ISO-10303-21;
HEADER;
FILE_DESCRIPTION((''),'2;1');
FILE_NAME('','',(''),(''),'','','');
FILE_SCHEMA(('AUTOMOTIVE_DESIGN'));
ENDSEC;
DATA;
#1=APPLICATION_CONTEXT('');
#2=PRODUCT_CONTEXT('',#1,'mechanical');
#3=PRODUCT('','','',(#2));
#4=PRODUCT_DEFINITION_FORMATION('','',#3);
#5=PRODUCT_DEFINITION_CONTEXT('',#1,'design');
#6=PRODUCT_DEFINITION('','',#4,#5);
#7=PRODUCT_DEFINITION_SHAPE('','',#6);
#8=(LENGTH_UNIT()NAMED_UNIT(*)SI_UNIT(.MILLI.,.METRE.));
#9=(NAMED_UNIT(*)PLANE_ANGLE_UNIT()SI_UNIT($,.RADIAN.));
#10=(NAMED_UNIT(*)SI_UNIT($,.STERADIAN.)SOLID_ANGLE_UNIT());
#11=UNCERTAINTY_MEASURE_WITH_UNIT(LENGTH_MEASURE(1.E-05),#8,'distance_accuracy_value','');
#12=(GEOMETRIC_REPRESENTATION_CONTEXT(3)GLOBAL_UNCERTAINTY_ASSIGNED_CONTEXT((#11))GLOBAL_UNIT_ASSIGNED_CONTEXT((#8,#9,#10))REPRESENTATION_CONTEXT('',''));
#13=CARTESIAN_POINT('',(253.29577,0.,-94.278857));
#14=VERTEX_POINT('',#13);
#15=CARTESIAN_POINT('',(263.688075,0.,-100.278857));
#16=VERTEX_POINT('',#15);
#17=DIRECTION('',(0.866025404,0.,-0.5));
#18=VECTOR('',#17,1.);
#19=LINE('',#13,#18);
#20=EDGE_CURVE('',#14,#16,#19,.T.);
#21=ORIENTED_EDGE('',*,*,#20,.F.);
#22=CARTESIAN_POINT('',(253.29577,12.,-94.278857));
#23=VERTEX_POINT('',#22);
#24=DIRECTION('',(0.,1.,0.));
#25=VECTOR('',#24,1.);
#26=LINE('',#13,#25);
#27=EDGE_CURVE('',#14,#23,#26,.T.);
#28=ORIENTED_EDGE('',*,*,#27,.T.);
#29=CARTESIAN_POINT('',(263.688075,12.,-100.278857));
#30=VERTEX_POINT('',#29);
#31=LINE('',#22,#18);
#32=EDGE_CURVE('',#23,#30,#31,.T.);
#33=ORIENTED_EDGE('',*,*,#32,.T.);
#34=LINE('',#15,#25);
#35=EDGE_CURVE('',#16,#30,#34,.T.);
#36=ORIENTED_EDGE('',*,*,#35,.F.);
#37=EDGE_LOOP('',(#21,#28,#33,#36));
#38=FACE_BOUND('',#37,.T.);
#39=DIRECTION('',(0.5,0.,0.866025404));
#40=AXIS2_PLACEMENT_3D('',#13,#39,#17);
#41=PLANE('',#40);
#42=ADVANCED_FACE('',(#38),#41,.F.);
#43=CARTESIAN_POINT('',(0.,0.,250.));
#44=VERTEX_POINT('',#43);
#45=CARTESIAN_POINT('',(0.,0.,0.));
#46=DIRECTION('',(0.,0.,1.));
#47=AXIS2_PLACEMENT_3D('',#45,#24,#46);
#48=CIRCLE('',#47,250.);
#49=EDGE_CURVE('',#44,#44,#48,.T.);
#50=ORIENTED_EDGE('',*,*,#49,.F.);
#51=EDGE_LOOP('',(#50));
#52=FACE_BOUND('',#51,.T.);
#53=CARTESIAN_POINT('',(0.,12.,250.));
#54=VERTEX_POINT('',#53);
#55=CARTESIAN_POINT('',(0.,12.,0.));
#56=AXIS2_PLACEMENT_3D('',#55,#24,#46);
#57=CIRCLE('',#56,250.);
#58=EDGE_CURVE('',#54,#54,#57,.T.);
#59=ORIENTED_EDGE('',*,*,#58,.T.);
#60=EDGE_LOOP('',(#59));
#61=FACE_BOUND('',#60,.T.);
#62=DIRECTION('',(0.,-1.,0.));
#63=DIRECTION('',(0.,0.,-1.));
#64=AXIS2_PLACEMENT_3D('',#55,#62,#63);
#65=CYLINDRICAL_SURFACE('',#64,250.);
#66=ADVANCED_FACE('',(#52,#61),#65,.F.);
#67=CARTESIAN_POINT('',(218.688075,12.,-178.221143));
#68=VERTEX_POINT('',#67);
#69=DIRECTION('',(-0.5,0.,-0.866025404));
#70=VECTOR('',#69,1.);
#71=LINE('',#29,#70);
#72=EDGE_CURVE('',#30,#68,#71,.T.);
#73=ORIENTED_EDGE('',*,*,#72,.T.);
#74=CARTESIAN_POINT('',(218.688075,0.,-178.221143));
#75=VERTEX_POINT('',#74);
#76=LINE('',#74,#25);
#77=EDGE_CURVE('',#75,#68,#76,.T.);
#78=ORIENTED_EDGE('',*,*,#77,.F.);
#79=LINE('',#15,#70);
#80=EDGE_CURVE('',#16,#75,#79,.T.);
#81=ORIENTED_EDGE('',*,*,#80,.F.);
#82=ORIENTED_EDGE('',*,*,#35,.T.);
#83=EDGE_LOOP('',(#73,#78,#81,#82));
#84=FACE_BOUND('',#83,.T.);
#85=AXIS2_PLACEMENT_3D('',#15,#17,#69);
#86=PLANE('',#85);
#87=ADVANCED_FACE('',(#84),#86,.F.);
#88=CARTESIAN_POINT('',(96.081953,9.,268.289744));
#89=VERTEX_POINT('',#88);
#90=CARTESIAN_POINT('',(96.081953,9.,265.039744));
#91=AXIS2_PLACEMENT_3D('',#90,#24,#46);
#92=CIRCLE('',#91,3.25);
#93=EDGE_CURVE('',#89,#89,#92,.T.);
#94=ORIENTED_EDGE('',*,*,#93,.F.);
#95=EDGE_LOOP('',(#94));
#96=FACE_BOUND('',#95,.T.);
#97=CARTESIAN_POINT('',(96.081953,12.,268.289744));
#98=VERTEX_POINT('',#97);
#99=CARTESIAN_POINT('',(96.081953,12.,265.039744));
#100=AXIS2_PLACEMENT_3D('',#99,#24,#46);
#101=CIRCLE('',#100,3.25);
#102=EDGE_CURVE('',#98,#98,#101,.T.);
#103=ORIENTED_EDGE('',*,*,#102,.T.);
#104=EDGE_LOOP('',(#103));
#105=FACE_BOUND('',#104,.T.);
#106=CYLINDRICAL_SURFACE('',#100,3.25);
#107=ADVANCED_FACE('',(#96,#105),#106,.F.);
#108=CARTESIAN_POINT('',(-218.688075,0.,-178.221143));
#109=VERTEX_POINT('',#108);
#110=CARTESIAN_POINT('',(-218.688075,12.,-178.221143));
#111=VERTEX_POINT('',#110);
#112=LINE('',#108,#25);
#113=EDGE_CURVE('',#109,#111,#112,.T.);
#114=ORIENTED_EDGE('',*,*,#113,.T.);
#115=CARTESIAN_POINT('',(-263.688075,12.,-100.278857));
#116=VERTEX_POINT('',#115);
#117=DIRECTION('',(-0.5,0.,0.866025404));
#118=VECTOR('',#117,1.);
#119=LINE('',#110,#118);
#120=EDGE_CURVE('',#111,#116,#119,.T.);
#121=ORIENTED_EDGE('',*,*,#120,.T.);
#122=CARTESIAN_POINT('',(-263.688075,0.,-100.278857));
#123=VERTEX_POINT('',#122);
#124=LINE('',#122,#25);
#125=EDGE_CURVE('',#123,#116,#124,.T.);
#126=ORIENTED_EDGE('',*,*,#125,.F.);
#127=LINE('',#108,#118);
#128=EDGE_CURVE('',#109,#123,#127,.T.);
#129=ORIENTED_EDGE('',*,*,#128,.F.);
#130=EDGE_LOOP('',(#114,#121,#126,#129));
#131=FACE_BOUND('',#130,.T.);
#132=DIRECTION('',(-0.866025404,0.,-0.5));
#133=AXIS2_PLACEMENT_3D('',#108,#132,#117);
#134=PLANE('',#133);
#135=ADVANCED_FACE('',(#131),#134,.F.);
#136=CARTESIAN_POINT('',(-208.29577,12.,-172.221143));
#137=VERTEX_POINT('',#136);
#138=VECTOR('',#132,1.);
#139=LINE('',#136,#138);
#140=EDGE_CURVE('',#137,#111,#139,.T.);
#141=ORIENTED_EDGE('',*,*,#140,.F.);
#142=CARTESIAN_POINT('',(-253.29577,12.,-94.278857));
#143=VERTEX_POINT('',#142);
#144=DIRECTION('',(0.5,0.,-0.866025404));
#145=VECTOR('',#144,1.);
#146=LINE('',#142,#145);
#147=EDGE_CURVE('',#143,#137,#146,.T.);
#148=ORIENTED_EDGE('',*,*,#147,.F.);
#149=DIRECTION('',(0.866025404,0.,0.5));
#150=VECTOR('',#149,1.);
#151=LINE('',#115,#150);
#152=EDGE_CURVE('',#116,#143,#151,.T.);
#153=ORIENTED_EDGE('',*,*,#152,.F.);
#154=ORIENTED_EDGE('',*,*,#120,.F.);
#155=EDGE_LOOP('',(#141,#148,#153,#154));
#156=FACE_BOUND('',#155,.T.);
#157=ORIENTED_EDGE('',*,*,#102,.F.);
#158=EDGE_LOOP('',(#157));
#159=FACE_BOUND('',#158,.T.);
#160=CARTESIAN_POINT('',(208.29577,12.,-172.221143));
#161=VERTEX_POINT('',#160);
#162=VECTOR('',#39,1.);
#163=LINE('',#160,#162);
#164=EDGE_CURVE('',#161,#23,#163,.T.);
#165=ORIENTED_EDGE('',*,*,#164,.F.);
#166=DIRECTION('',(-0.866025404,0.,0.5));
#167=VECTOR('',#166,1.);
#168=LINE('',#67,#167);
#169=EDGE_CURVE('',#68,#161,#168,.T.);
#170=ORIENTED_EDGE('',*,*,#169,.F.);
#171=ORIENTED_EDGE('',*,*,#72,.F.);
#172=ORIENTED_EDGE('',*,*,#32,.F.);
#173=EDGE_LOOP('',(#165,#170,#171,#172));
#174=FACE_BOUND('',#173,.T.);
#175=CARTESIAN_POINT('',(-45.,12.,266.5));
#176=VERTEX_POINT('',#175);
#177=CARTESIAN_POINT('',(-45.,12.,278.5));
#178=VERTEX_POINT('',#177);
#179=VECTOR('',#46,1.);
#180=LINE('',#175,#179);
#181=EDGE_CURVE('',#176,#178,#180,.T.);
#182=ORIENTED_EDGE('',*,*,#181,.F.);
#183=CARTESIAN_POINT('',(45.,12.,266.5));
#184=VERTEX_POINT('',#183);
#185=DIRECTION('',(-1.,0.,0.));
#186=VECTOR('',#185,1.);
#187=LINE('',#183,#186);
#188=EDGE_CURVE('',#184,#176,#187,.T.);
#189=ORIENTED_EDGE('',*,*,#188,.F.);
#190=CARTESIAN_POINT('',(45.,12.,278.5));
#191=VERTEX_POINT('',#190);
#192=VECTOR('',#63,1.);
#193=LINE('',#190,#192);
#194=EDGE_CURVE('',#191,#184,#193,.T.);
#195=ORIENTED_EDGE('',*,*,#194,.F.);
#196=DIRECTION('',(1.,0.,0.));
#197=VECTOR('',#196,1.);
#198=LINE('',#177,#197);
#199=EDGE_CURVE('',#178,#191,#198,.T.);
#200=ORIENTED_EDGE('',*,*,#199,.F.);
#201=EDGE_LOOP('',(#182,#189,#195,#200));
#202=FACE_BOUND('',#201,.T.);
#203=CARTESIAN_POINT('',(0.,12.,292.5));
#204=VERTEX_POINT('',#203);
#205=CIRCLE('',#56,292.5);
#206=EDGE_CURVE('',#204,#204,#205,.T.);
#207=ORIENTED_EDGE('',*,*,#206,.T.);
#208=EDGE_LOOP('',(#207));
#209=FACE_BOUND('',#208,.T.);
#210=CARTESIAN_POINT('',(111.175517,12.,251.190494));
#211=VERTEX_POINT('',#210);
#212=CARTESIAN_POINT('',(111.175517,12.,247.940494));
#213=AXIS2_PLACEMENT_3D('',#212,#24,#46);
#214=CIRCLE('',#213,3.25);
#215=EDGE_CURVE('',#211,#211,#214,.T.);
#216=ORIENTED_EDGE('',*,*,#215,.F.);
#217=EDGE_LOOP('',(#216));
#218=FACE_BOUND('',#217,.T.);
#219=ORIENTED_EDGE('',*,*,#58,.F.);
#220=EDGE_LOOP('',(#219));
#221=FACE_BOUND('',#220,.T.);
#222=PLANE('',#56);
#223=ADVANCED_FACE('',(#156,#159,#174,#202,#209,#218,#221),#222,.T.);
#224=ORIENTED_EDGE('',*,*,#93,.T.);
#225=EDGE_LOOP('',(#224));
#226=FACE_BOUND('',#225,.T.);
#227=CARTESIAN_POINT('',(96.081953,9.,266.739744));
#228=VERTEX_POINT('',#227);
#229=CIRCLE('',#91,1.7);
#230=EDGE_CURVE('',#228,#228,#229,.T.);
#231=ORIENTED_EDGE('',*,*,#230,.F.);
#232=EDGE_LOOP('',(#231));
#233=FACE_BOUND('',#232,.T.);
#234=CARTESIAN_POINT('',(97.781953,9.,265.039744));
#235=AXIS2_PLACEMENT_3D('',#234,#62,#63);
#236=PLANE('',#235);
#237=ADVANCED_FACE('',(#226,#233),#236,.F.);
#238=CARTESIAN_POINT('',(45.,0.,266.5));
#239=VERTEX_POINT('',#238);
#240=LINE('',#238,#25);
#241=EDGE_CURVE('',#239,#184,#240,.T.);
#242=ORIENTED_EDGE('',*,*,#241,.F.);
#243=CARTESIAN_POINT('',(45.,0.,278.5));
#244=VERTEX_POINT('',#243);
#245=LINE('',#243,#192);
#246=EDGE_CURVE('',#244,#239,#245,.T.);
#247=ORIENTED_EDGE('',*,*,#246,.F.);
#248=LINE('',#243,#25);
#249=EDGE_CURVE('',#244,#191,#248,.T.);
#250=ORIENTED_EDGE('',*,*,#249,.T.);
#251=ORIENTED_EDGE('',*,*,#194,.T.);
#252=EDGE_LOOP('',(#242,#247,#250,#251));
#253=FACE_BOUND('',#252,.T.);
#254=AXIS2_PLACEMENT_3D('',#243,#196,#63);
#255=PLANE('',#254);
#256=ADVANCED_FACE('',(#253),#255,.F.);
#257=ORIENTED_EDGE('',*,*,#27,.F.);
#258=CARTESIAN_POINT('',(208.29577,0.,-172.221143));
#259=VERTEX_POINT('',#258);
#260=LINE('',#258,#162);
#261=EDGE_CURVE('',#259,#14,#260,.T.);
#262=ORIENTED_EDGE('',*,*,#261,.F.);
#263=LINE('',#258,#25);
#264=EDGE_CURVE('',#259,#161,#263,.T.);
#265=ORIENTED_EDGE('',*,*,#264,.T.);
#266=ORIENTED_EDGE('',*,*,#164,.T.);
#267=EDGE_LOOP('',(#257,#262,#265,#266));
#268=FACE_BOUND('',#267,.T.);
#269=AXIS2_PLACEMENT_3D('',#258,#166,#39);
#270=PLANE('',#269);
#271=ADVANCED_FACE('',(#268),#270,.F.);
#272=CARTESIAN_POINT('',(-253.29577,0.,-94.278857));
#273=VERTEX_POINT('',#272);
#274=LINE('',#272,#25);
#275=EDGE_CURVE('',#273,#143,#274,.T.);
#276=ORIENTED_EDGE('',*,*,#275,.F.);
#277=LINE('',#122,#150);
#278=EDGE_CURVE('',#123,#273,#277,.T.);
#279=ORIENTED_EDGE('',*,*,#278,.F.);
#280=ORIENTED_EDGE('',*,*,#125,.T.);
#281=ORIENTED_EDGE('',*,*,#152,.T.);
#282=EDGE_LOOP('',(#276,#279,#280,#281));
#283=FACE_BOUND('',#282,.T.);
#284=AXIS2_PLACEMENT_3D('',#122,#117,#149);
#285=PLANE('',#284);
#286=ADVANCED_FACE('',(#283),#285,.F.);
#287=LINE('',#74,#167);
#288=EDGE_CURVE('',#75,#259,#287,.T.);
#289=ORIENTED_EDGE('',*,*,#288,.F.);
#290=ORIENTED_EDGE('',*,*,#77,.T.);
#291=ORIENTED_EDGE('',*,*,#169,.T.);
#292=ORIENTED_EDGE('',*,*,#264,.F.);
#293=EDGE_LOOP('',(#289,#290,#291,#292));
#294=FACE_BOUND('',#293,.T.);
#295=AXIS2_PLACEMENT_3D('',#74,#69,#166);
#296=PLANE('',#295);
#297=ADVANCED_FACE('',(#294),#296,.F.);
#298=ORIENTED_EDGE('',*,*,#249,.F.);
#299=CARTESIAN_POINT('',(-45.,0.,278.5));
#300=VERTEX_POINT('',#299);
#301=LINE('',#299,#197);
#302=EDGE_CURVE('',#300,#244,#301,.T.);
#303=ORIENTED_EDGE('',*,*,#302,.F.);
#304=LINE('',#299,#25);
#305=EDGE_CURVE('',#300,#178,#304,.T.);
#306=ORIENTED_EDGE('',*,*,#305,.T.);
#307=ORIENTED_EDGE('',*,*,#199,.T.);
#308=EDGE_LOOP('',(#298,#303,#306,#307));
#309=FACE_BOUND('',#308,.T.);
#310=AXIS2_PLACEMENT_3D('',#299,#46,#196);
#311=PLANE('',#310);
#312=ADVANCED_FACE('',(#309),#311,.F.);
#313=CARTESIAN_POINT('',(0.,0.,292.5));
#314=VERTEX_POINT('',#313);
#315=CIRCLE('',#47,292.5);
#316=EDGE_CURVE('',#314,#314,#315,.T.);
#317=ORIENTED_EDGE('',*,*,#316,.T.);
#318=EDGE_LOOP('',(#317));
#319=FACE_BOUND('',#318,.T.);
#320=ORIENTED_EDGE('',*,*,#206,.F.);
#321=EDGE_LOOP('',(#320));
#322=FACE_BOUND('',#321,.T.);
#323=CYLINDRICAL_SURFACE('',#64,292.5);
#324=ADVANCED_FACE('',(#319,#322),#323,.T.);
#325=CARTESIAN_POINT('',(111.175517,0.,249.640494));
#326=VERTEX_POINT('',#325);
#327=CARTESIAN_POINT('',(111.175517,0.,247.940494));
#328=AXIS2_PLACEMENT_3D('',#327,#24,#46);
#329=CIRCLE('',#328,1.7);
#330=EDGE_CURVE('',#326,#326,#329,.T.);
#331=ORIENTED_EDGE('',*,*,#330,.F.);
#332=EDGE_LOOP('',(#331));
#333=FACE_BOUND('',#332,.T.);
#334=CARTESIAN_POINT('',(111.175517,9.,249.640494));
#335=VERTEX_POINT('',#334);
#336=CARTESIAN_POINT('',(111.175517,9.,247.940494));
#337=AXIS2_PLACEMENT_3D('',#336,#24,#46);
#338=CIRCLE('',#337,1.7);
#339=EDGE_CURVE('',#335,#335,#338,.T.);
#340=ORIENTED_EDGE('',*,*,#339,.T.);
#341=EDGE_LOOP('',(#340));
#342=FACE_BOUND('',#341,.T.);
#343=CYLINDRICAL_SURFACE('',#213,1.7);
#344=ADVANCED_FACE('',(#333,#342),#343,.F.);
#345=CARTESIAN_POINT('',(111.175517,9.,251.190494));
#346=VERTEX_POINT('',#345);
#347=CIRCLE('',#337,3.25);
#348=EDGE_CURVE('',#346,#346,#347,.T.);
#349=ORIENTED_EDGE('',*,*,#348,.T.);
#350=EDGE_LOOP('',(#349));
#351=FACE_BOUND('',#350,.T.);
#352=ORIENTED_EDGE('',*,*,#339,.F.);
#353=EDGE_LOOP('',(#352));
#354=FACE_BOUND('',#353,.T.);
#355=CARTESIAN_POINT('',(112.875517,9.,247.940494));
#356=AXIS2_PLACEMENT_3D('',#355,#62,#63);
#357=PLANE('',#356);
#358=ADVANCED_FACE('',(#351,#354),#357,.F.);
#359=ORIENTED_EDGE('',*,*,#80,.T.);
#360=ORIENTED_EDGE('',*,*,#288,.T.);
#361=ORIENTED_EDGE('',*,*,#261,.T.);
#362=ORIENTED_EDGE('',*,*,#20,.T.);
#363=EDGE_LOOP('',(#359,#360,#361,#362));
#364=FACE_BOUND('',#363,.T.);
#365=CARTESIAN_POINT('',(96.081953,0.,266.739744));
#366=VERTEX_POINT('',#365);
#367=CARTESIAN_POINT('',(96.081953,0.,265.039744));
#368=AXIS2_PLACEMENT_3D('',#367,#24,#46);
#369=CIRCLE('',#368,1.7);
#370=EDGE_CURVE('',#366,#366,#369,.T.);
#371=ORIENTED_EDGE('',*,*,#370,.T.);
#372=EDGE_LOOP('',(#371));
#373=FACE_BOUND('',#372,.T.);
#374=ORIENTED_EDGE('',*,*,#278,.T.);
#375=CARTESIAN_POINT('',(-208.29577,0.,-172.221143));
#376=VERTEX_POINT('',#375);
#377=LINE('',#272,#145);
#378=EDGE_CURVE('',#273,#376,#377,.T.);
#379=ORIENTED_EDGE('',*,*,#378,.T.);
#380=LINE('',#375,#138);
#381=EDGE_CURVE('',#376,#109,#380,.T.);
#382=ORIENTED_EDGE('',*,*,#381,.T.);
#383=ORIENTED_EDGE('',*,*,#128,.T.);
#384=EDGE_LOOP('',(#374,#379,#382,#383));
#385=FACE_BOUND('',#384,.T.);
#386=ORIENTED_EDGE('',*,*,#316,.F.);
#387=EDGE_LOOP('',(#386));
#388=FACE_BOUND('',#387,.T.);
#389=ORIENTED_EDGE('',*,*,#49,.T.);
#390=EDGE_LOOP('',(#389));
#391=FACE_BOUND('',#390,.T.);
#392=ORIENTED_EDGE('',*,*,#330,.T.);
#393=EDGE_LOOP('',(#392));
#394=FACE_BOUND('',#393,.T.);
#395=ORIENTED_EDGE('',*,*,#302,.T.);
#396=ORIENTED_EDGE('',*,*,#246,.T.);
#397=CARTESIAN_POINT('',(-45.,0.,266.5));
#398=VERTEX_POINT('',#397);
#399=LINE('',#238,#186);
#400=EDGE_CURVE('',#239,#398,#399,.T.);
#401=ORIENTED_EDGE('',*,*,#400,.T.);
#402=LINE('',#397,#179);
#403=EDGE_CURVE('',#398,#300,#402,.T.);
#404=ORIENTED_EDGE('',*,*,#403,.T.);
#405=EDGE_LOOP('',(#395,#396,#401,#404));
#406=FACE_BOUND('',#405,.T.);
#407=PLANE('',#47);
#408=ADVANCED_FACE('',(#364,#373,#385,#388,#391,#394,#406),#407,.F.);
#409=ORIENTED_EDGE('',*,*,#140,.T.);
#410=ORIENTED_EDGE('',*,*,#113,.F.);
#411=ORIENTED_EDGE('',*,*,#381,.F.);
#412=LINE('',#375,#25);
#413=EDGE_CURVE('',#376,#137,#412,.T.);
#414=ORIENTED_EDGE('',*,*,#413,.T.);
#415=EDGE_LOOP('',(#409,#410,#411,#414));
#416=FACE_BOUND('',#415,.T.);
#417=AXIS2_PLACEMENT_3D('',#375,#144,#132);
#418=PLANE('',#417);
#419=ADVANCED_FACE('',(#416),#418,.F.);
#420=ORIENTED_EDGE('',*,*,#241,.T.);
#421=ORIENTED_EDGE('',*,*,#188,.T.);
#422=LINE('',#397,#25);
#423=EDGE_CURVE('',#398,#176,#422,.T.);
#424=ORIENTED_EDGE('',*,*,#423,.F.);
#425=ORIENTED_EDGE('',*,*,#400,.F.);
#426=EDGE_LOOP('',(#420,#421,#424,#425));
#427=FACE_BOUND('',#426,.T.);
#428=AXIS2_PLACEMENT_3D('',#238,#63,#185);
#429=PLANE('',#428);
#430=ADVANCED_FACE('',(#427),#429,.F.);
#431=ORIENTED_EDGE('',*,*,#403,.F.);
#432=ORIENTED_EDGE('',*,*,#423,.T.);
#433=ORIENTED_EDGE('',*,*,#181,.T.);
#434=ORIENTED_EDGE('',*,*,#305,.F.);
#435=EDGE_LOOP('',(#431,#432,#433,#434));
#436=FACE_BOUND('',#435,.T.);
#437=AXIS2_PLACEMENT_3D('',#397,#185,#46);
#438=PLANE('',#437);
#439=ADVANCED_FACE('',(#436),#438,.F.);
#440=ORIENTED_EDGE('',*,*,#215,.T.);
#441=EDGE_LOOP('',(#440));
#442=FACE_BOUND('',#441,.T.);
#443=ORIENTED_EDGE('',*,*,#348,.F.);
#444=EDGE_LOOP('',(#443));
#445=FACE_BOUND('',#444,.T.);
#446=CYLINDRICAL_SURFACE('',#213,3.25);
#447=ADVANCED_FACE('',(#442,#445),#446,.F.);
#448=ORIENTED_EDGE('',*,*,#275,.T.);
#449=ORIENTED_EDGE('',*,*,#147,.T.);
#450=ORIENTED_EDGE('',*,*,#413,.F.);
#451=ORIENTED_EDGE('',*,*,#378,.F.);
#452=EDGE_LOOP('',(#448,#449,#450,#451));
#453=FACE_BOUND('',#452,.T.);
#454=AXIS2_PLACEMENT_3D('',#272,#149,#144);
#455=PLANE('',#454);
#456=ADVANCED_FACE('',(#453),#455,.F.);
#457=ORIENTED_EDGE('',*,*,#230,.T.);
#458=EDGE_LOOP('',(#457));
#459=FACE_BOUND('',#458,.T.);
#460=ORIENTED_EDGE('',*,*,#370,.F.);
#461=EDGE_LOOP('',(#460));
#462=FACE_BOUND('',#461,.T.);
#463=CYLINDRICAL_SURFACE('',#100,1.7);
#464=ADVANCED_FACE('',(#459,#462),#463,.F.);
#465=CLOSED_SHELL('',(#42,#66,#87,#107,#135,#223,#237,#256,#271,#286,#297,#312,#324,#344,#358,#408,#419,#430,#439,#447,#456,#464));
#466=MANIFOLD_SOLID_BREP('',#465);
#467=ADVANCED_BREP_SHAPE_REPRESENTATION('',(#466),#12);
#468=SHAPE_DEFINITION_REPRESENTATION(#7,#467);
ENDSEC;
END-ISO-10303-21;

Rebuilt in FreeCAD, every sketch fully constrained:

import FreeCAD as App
import Part
import Sketcher
Q = App.Units.Quantity


def add_polygon(sketch, points):
    """Adds a closed chain of lines whose ends are joined by coincident constraints."""
    first, n = sketch.GeometryCount, len(points)
    for a, b in zip(points, points[1:] + points[:1]):
        sketch.addGeometry(Part.LineSegment(App.Vector(*a, 0), App.Vector(*b, 0)), False)
    for i in range(n):
        sketch.addConstraint(Sketcher.Constraint("Coincident", first + i, 2, first + (i + 1) % n, 1))

doc = App.newDocument("Part")
body = doc.addObject("PartDesign::Body", "Body")

# Sketch on XZ plane
sketch1 = body.newObject("Sketcher::SketchObject", "Sketch")
sketch1.AttachmentSupport = (doc.getObject("XZ_Plane"), [""])
sketch1.MapMode = "FlatFace"
sketch1.addGeometry([
    Part.Circle(App.Vector(0, 0, 0), App.Vector(0, 0, 1), 292),
    Part.Circle(App.Vector(0, 0, 0), App.Vector(0, 0, 1), 250),
], False)
sketch1.addConstraint([
    Sketcher.Constraint("Coincident", 0, 3, -1, 1),
    Sketcher.Constraint("Coincident", 1, 3, -1, 1),
    Sketcher.Constraint("Diameter", 0, Q("585 mm")),
    Sketcher.Constraint("Diameter", 1, Q("500 mm")),
])
pad1 = body.newObject("PartDesign::Pad", "Pad")
pad1.Profile = sketch1
pad1.Length = 12
pad1.Reversed = True

# Sketch on XZ plane
sketch2 = body.newObject("Sketcher::SketchObject", "Sketch001")
sketch2.AttachmentSupport = (doc.getObject("XZ_Plane"), [""])
sketch2.MapMode = "FlatFace"
sketch2.AttachmentOffset = App.Placement(App.Vector(0, 0, -12), App.Rotation())
add_polygon(sketch2, [(-45, 266), (-45, 278), (45, 278), (45, 266)])  # lines 0-3
sketch2.addConstraint([
    Sketcher.Constraint("Vertical", 0),
    Sketcher.Constraint("Horizontal", 1),
    Sketcher.Constraint("Vertical", 2),
    Sketcher.Constraint("Horizontal", 3),
    Sketcher.Constraint("DistanceX", 1, 1, 1, 2, Q("90 mm")),
    Sketcher.Constraint("DistanceY", 0, 1, 0, 2, Q("12 mm")),
    Sketcher.Constraint("DistanceX", 0, 2, -1, 1, Q("45 mm")),
    Sketcher.Constraint("DistanceY", -1, 1, 0, 2, Q("278.5 mm")),
])
pocket1 = body.newObject("PartDesign::Pocket", "Pocket")
pocket1.Profile = sketch2
pocket1.Length = 12
pocket1.Reversed = True
doc.recompute()

polarpattern = body.newObject("PartDesign::PolarPattern", "PolarPattern")
polarpattern.Originals = [pocket1]
polarpattern.Axis = (doc.getObject("Y_Axis"), [""])
polarpattern.Angle = 360
polarpattern.Occurrences = 3
body.Tip = polarpattern

# Sketch on XZ plane
sketch3 = body.newObject("Sketcher::SketchObject", "Sketch002")
sketch3.AttachmentSupport = (doc.getObject("XZ_Plane"), [""])
sketch3.MapMode = "FlatFace"
sketch3.AttachmentOffset = App.Placement(App.Vector(0, 0, -12), App.Rotation())
sketch3.addGeometry([
    Part.Circle(App.Vector(111.2, 247.9, 0), App.Vector(0, 0, 1), 1.7),
    Part.Circle(App.Vector(96.1, 265, 0), App.Vector(0, 0, 1), 1.7),
], False)
sketch3.addConstraint([
    Sketcher.Constraint("Equal", 0, 1),
    Sketcher.Constraint("Diameter", 0, Q("3.4 mm")),
    Sketcher.Constraint("DistanceY", 0, 3, 1, 3, Q("17.09925 mm")),
    Sketcher.Constraint("DistanceX", -1, 1, 0, 3, Q("111.175517 mm")),
    Sketcher.Constraint("DistanceY", -1, 1, 0, 3, Q("247.940494 mm")),
    Sketcher.Constraint("DistanceX", -1, 1, 1, 3, Q("96.081953 mm")),
])
doc.recompute()
hole = body.newObject("PartDesign::Hole", "Hole")
hole.Profile = sketch3
hole.ThreadType = "None"
hole.Diameter = 3.4
hole.DepthType = "ThroughAll"
hole.HoleCutType = "Counterbore"
hole.HoleCutDiameter = 6.5
hole.HoleCutDepth = 3
hole.Reversed = True

doc.recompute()
